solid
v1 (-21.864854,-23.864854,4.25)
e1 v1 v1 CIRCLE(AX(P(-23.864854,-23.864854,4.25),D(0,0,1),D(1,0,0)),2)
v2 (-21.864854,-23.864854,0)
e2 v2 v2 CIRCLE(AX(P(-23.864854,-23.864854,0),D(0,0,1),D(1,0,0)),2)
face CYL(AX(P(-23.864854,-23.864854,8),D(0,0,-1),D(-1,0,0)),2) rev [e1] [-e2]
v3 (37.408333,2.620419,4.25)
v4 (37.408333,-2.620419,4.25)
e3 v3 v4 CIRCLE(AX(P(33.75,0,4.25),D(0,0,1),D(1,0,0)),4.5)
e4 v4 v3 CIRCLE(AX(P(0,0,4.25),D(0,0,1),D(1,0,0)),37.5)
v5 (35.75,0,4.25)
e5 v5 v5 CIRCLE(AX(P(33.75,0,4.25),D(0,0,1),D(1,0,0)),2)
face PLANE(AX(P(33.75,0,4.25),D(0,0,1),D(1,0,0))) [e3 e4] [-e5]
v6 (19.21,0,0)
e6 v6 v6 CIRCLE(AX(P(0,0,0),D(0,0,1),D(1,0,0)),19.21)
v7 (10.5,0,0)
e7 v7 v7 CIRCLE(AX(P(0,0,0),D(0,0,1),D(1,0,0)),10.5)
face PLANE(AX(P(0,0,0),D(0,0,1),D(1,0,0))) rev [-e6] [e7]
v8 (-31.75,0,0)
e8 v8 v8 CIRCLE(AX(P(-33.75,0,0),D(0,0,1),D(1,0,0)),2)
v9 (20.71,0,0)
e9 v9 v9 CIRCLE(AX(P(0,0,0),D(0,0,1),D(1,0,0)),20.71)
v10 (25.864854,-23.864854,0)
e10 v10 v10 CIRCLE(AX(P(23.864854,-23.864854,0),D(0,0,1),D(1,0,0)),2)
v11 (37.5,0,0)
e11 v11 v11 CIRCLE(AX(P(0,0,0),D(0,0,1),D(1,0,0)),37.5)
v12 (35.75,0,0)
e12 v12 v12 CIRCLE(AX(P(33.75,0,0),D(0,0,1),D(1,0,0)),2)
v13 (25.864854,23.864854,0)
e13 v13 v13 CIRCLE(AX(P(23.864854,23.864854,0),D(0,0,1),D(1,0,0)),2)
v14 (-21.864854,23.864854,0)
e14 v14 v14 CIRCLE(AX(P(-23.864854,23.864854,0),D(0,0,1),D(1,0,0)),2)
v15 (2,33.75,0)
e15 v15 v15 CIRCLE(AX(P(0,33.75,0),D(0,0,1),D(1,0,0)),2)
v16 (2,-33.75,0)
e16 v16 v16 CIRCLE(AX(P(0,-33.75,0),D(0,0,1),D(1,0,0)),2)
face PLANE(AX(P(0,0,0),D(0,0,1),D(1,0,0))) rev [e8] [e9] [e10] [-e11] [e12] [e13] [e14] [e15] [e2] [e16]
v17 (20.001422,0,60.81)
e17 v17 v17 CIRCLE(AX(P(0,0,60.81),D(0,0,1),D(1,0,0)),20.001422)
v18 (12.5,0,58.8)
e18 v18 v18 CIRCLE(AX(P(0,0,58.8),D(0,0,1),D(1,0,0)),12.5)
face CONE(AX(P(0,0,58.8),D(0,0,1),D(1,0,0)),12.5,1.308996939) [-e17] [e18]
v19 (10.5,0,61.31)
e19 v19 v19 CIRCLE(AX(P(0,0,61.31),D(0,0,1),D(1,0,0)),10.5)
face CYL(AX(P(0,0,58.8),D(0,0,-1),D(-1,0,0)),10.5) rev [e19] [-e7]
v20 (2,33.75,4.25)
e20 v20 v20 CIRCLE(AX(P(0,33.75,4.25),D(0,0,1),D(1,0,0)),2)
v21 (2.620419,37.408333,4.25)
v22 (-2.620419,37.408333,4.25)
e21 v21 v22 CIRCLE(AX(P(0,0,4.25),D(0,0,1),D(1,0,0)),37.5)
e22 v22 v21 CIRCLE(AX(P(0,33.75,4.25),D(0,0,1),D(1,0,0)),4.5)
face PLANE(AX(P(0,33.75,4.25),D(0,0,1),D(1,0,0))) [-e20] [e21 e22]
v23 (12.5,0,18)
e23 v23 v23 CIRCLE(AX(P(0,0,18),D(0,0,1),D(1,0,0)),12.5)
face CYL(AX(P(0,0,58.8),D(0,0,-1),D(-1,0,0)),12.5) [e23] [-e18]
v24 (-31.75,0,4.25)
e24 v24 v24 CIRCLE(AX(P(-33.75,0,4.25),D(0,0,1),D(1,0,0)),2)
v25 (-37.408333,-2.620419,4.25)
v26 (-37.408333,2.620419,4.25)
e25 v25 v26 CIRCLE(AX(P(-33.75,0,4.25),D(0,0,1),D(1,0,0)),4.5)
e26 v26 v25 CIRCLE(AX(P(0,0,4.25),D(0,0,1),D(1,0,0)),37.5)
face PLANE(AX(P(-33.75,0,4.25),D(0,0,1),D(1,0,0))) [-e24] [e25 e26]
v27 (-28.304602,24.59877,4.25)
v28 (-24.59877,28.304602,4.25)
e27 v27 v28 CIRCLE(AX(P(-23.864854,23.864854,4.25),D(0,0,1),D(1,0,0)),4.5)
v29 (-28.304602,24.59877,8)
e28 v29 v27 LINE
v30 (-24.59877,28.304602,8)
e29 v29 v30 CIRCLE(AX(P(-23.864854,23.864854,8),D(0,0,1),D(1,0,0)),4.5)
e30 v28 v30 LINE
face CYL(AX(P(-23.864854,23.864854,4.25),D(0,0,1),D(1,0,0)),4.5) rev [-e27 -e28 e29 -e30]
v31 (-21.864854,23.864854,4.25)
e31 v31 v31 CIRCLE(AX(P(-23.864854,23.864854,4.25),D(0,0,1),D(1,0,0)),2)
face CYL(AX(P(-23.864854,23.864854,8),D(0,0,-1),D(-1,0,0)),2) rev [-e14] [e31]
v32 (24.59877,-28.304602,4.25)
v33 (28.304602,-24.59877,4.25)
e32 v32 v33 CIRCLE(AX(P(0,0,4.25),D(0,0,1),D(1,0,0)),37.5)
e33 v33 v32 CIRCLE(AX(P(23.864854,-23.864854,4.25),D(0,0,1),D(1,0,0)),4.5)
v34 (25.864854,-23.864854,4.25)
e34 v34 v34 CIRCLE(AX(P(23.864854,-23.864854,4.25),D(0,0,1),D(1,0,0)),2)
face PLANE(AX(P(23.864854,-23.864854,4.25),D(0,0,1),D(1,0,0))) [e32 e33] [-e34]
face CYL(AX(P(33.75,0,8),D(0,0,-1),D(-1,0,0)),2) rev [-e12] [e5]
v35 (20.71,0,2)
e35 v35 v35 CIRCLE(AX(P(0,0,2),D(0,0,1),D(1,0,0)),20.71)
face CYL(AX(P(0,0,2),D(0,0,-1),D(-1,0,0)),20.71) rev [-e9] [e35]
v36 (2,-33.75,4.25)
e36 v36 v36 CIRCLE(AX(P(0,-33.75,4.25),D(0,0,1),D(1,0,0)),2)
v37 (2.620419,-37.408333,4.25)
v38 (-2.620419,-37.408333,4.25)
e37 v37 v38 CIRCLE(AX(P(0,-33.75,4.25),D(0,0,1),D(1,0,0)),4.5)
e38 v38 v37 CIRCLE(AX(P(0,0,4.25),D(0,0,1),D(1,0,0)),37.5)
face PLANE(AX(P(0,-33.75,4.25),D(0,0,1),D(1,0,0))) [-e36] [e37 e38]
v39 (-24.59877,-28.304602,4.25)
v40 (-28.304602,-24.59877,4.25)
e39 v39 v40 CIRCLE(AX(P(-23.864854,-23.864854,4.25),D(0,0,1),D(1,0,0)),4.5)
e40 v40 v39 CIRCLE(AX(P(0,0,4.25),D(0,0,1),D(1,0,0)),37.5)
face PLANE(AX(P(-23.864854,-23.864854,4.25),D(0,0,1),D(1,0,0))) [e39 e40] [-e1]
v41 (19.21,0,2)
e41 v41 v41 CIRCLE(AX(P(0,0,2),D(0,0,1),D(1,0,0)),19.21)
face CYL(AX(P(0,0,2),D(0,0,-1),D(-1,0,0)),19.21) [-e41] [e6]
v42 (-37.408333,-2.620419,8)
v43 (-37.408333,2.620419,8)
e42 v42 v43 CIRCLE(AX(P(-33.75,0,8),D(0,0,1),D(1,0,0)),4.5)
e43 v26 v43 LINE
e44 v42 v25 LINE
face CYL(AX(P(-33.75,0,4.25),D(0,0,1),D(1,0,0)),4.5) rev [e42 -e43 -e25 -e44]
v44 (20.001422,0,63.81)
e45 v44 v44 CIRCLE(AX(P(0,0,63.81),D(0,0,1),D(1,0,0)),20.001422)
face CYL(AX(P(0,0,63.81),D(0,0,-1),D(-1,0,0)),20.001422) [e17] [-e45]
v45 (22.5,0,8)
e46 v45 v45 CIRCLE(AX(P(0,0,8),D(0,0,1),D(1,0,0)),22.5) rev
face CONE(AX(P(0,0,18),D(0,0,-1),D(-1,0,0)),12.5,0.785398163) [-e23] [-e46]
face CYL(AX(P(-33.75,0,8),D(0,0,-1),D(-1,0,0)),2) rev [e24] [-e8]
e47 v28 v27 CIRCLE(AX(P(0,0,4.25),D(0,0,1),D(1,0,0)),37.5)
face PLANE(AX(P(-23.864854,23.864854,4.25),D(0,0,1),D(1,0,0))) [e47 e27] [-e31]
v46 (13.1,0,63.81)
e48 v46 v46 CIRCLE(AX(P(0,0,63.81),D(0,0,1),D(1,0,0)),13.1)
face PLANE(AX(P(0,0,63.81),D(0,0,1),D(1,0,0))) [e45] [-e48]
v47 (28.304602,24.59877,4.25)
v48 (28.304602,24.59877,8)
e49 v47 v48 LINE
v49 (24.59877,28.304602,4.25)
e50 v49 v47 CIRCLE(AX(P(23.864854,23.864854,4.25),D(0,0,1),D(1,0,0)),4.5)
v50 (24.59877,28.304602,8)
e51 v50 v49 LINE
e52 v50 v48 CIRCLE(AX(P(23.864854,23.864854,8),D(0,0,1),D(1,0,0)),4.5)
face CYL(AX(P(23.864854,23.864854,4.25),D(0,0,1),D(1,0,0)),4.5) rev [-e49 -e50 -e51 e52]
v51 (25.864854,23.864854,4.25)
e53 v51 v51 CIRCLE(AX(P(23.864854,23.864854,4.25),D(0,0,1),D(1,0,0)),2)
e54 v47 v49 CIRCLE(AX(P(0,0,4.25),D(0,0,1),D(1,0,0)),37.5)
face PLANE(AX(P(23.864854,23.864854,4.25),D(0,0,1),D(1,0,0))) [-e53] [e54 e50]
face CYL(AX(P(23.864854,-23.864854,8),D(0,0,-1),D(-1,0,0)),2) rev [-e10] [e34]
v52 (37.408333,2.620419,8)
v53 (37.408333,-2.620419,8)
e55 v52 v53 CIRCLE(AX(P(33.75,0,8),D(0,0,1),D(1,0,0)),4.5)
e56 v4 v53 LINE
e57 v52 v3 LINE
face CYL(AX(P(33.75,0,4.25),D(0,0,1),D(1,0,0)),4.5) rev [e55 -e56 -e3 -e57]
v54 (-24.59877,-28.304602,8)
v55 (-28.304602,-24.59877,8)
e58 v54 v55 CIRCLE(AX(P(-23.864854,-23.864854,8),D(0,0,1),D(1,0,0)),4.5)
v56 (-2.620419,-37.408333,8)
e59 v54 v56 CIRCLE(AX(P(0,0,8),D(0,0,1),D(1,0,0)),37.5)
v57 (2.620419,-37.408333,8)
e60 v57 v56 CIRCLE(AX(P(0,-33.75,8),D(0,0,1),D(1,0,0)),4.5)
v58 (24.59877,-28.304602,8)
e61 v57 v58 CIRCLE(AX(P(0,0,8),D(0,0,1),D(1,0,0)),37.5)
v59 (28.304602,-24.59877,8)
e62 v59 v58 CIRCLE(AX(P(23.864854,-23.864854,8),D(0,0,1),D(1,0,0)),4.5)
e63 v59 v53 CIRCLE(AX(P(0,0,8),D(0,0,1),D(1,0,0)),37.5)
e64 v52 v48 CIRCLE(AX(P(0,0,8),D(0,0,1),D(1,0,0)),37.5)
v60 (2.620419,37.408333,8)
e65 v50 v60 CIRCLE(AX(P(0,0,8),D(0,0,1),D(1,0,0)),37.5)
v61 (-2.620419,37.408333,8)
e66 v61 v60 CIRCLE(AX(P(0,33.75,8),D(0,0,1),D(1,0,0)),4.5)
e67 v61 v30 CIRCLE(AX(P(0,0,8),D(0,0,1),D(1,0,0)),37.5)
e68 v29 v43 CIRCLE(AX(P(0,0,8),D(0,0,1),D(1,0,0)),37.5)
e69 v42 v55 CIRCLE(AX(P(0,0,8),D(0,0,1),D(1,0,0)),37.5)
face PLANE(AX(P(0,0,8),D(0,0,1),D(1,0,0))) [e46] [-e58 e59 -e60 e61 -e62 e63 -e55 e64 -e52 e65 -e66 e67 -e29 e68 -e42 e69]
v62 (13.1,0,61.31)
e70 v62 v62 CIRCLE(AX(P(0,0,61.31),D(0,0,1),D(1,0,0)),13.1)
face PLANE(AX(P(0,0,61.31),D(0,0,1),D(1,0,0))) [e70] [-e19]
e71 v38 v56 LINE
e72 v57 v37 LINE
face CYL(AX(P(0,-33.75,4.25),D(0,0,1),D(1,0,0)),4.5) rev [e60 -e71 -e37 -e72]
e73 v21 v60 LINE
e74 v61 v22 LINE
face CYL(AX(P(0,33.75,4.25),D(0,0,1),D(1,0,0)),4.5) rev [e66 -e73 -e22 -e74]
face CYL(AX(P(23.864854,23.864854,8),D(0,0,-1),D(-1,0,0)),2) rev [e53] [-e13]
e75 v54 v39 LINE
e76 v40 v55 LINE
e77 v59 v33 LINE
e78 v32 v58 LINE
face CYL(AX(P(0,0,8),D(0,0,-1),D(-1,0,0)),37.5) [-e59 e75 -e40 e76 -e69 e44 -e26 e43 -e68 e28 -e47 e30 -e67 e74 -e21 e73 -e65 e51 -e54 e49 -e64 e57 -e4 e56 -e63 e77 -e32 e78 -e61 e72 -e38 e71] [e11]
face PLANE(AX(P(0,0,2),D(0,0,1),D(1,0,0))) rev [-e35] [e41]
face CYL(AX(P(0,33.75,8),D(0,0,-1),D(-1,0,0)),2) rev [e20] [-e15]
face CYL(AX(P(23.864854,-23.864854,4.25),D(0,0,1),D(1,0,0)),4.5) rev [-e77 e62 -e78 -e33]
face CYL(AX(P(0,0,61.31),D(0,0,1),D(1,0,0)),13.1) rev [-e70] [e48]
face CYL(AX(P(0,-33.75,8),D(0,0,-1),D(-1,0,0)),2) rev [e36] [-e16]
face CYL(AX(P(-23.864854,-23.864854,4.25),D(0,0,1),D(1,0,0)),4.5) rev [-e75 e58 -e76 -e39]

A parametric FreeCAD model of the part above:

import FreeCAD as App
import Part
import Sketcher


def edges_at(feature, points):
    """Names of the edges that pass closest to the given points."""
    edges = feature.Shape.Edges
    near = lambda p: min(range(len(edges)), key=lambda i: edges[i].distToShape(Part.Vertex(*p))[0])
    return sorted({f"Edge{near(p) + 1}" for p in points})


def faces_at(feature, points):
    """Names of the faces that lie closest to the given points."""
    faces = feature.Shape.Faces
    near = lambda p: min(range(len(faces)), key=lambda i: faces[i].distToShape(Part.Vertex(*p))[0])
    return sorted({f"Face{near(p) + 1}" for p in points})

doc = App.newDocument("Part")
body = doc.addObject("PartDesign::Body", "Body")

# Sketch on XY plane
sketch1 = body.newObject("Sketcher::SketchObject", "Sketch")
sketch1.AttachmentSupport = (doc.getObject("XY_Plane"), [""])
sketch1.MapMode = "FlatFace"
sketch1.addGeometry(Part.Circle(App.Vector(0, 0, 0), App.Vector(0, 0, 1), 38), False)
sketch1.addGeometry(Part.Circle(App.Vector(0, 0, 0), App.Vector(0, 0, 1), 5), False)
sketch1.addConstraint(Sketcher.Constraint("Coincident", 0, 3, -1, 1))
sketch1.addConstraint(Sketcher.Constraint("Coincident", 1, 3, -1, 1))
sketch1.addConstraint(Sketcher.Constraint("Diameter", 0, 75.0))
sketch1.addConstraint(Sketcher.Constraint("Diameter", 1, 10.7))
pad1 = body.newObject("PartDesign::Pad", "Pad")
pad1.Profile = sketch1
pad1.Length = 8

# Sketch on XY plane
sketch2 = body.newObject("Sketcher::SketchObject", "Sketch001")
sketch2.AttachmentSupport = (doc.getObject("XY_Plane"), [""])
sketch2.MapMode = "FlatFace"
sketch2.addGeometry(Part.Circle(App.Vector(0, 33.8, 0), App.Vector(0, 0, 1), 2), False)
sketch2.addGeometry(Part.Circle(App.Vector(-23.9, 23.9, 0), App.Vector(0, 0, 1), 2), False)
sketch2.addGeometry(Part.Circle(App.Vector(-33.8, 0, 0), App.Vector(0, 0, 1), 2), False)
sketch2.addGeometry(Part.Circle(App.Vector(-23.9, -23.9, 0), App.Vector(0, 0, 1), 2), False)
sketch2.addGeometry(Part.Circle(App.Vector(0, -33.8, 0), App.Vector(0, 0, 1), 2), False)
sketch2.addGeometry(Part.Circle(App.Vector(23.9, -23.9, 0), App.Vector(0, 0, 1), 2), False)
sketch2.addGeometry(Part.Circle(App.Vector(33.8, 0, 0), App.Vector(0, 0, 1), 2), False)
sketch2.addGeometry(Part.Circle(App.Vector(23.9, 23.9, 0), App.Vector(0, 0, 1), 2), False)
sketch2.addConstraint(Sketcher.Constraint("Equal", 0, 1))
sketch2.addConstraint(Sketcher.Constraint("Equal", 1, 2))
sketch2.addConstraint(Sketcher.Constraint("Equal", 2, 3))
sketch2.addConstraint(Sketcher.Constraint("Equal", 3, 4))
sketch2.addConstraint(Sketcher.Constraint("Equal", 4, 5))
sketch2.addConstraint(Sketcher.Constraint("Equal", 5, 6))
sketch2.addConstraint(Sketcher.Constraint("Equal", 6, 7))
sketch2.addConstraint(Sketcher.Constraint("Symmetric", 0, 3, 4, 3, -1, 1))
sketch2.addConstraint(Sketcher.Constraint("Symmetric", 1, 3, 5, 3, -1, 1))
sketch2.addConstraint(Sketcher.Constraint("Symmetric", 2, 3, 6, 3, -1, 1))
sketch2.addConstraint(Sketcher.Constraint("Symmetric", 3, 3, 7, 3, -1, 1))
sketch2.addConstraint(Sketcher.Constraint("Symmetric", 3, 3, 5, 3, -2))
sketch2.addConstraint(Sketcher.Constraint("PointOnObject", 0, 3, -2))
sketch2.addConstraint(Sketcher.Constraint("PointOnObject", 2, 3, -1))
sketch2.addConstraint(Sketcher.Constraint("Diameter", 0, 4.0))
sketch2.addConstraint(Sketcher.Constraint("DistanceY", 4, 3, 0, 3, 67.5))
sketch2.addConstraint(Sketcher.Constraint("DistanceX", 2, 3, -1, 1, 33.75))
sketch2.addConstraint(Sketcher.Constraint("DistanceX", 1, 3, -1, 1, 23.864854))
sketch2.addConstraint(Sketcher.Constraint("DistanceY", -1, 1, 1, 3, 23.864854))
pocket1 = body.newObject("PartDesign::Pocket", "Pocket")
pocket1.Profile = sketch2
pocket1.Type = "ThroughAll"
pocket1.Reversed = True

# Sketch on XY plane
sketch3 = body.newObject("Sketcher::SketchObject", "Sketch002")
sketch3.AttachmentSupport = (doc.getObject("XY_Plane"), [""])
sketch3.MapMode = "FlatFace"
sketch3.addGeometry(Part.Circle(App.Vector(0, 0, 0), App.Vector(0, 0, 1), 21), False)
sketch3.addGeometry(Part.Circle(App.Vector(0, 0, 0), App.Vector(0, 0, 1), 19), False)
sketch3.addConstraint(Sketcher.Constraint("Coincident", 0, 3, -1, 1))
sketch3.addConstraint(Sketcher.Constraint("Coincident", 1, 3, -1, 1))
sketch3.addConstraint(Sketcher.Constraint("Diameter", 0, 41.42))
sketch3.addConstraint(Sketcher.Constraint("Diameter", 1, 38.42))
pocket2 = body.newObject("PartDesign::Pocket", "Pocket001")
pocket2.Profile = sketch3
pocket2.Length = 2
pocket2.Reversed = True

# Sketch on XY plane
sketch4 = body.newObject("Sketcher::SketchObject", "Sketch003")
sketch4.AttachmentSupport = (doc.getObject("XY_Plane"), [""])
sketch4.MapMode = "FlatFace"
sketch4.AttachmentOffset = App.Placement(App.Vector(0, 0, 8), App.Rotation())
sketch4.addGeometry(Part.Circle(App.Vector(0, 0, 0), App.Vector(0, 0, 1), 12), False)
sketch4.addGeometry(Part.Circle(App.Vector(0, 0, 0), App.Vector(0, 0, 1), 10), False)
sketch4.addConstraint(Sketcher.Constraint("Coincident", 0, 3, -1, 1))
sketch4.addConstraint(Sketcher.Constraint("Coincident", 1, 3, -1, 1))
sketch4.addConstraint(Sketcher.Constraint("Diameter", 0, 25.0))
sketch4.addConstraint(Sketcher.Constraint("Diameter", 1, 21.0))
pad2 = body.newObject("PartDesign::Pad", "Pad001")
pad2.Profile = sketch4
pad2.Length = 50.8
body2 = doc.addObject("PartDesign::Body", "Body001")

# Sketch on XY plane
sketch5 = body2.newObject("Sketcher::SketchObject", "Sketch004")
sketch5.AttachmentSupport = (doc.getObject("XY_Plane001"), [""])
sketch5.MapMode = "FlatFace"
sketch5.AttachmentOffset = App.Placement(App.Vector(0, 0, 58.8), App.Rotation())
sketch5.addGeometry(Part.Circle(App.Vector(0, 0, 0), App.Vector(0, 0, 1), 12), False)
sketch5.addConstraint(Sketcher.Constraint("Coincident", 0, 3, -1, 1))
sketch5.addConstraint(Sketcher.Constraint("Diameter", 0, 25.0))
pad3 = body2.newObject("PartDesign::Pad", "Pad002")
pad3.Profile = sketch5
pad3.Length = 2.01
doc.recompute()

datumplane = body2.newObject("PartDesign::Plane", "DatumPlane")
datumplane.AttachmentSupport = (doc.getObject("XY_Plane001"), [""])
datumplane.MapMode = "FlatFace"
datumplane.AttachmentOffset = App.Placement(App.Vector(0, 0, 58.8), App.Rotation())
draft = body2.newObject("PartDesign::Draft", "Draft")
draft.Base = (pad3, faces_at(pad3, [(-12.5, 0, 59.805)]))
draft.NeutralPlane = (datumplane, [""])
draft.Angle = 75
draft.Reversed = True
doc.recompute()

boolean = body.newObject("PartDesign::Boolean", "Boolean")
boolean.Type = "Fuse"
boolean.addObjects([body2])

# Sketch on XY plane
sketch6 = body.newObject("Sketcher::SketchObject", "Sketch005")
sketch6.AttachmentSupport = (doc.getObject("XY_Plane"), [""])
sketch6.MapMode = "FlatFace"
sketch6.AttachmentOffset = App.Placement(App.Vector(0, 0, 60.81), App.Rotation())
sketch6.addGeometry(Part.Circle(App.Vector(0, 0, 0), App.Vector(0, 0, 1), 10), False)
sketch6.addConstraint(Sketcher.Constraint("Coincident", 0, 3, -1, 1))
sketch6.addConstraint(Sketcher.Constraint("Diameter", 0, 21.0))
pocket3 = body.newObject("PartDesign::Pocket", "Pocket002")
pocket3.Profile = sketch6
pocket3.Type = "ThroughAll"

# Sketch on XY plane
sketch7 = body.newObject("Sketcher::SketchObject", "Sketch006")
sketch7.AttachmentSupport = (doc.getObject("XY_Plane"), [""])
sketch7.MapMode = "FlatFace"
sketch7.AttachmentOffset = App.Placement(App.Vector(0, 0, 63.81), App.Rotation())
sketch7.addGeometry(Part.Circle(App.Vector(0, 0, 0), App.Vector(0, 0, 1), 20), False)
sketch7.addGeometry(Part.Circle(App.Vector(0, 0, 0), App.Vector(0, 0, 1), 10), False)
sketch7.addConstraint(Sketcher.Constraint("Coincident", 0, 3, -1, 1))
sketch7.addConstraint(Sketcher.Constraint("Coincident", 1, 3, -1, 1))
sketch7.addConstraint(Sketcher.Constraint("Diameter", 1, 21.0))
sketch7.addConstraint(Sketcher.Constraint("Diameter", 0, 40.002844))
pad4 = body.newObject("PartDesign::Pad", "Pad003")
pad4.Profile = sketch7
pad4.Length = 3
pad4.Reversed = True

# Sketch on XY plane
sketch8 = body.newObject("Sketcher::SketchObject", "Sketch007")
sketch8.AttachmentSupport = (doc.getObject("XY_Plane"), [""])
sketch8.MapMode = "FlatFace"
sketch8.AttachmentOffset = App.Placement(App.Vector(0, 0, 63.81), App.Rotation())
sketch8.addGeometry(Part.Circle(App.Vector(0, 0, 0), App.Vector(0, 0, 1), 13), False)
sketch8.addConstraint(Sketcher.Constraint("Coincident", 0, 3, -1, 1))
sketch8.addConstraint(Sketcher.Constraint("Diameter", 0, 26.2))
pocket4 = body.newObject("PartDesign::Pocket", "Pocket003")
pocket4.Profile = sketch8
pocket4.Length = 2.5
doc.recompute()

chamfer = body.newObject("PartDesign::Chamfer", "Chamfer")
chamfer.Base = (pocket4, edges_at(pocket4, [(-12.5, 0, 8)]))
chamfer.Size = 10

# Sketch on XY plane
sketch9 = body.newObject("Sketcher::SketchObject", "Sketch008")
sketch9.AttachmentSupport = (doc.getObject("XY_Plane"), [""])
sketch9.MapMode = "FlatFace"
sketch9.AttachmentOffset = App.Placement(App.Vector(0, 0, 8), App.Rotation())
sketch9.addGeometry(Part.Circle(App.Vector(-23.9, 23.9, 0), App.Vector(0, 0, 1), 4.5), False)
sketch9.addGeometry(Part.Circle(App.Vector(-33.8, 0, 0), App.Vector(0, 0, 1), 4.5), False)
sketch9.addGeometry(Part.Circle(App.Vector(0, 33.8, 0), App.Vector(0, 0, 1), 4.5), False)
sketch9.addGeometry(Part.Circle(App.Vector(23.9, 23.9, 0), App.Vector(0, 0, 1), 4.5), False)
sketch9.addGeometry(Part.Circle(App.Vector(33.8, 0, 0), App.Vector(0, 0, 1), 4.5), False)
sketch9.addGeometry(Part.Circle(App.Vector(23.9, -23.9, 0), App.Vector(0, 0, 1), 4.5), False)
sketch9.addGeometry(Part.Circle(App.Vector(0, -33.8, 0), App.Vector(0, 0, 1), 4.5), False)
sketch9.addGeometry(Part.Circle(App.Vector(-23.9, -23.9, 0), App.Vector(0, 0, 1), 4.5), False)
sketch9.addConstraint(Sketcher.Constraint("Equal", 0, 1))
sketch9.addConstraint(Sketcher.Constraint("Equal", 1, 2))
sketch9.addConstraint(Sketcher.Constraint("Equal", 2, 3))
sketch9.addConstraint(Sketcher.Constraint("Equal", 3, 4))
sketch9.addConstraint(Sketcher.Constraint("Equal", 4, 5))
sketch9.addConstraint(Sketcher.Constraint("Equal", 5, 6))
sketch9.addConstraint(Sketcher.Constraint("Equal", 6, 7))
sketch9.addConstraint(Sketcher.Constraint("Symmetric", 1, 3, 4, 3, -1, 1))
sketch9.addConstraint(Sketcher.Constraint("Symmetric", 0, 3, 5, 3, -1, 1))
sketch9.addConstraint(Sketcher.Constraint("Symmetric", 2, 3, 6, 3, -1, 1))
sketch9.addConstraint(Sketcher.Constraint("Symmetric", 3, 3, 7, 3, -1, 1))
sketch9.addConstraint(Sketcher.Constraint("Symmetric", 0, 3, 3, 3, -2))
sketch9.addConstraint(Sketcher.Constraint("PointOnObject", 1, 3, -1))
sketch9.addConstraint(Sketcher.Constraint("PointOnObject", 2, 3, -2))
sketch9.addConstraint(Sketcher.Constraint("Diameter", 0, 9.0))
sketch9.addConstraint(Sketcher.Constraint("DistanceX", 1, 3, 4, 3, 67.5))
sketch9.addConstraint(Sketcher.Constraint("DistanceY", -1, 1, 2, 3, 33.75))
sketch9.addConstraint(Sketcher.Constraint("DistanceX", 0, 3, -1, 1, 23.864854))
sketch9.addConstraint(Sketcher.Constraint("DistanceY", -1, 1, 0, 3, 23.864854))
pocket5 = body.newObject("PartDesign::Pocket", "Pocket004")
pocket5.Profile = sketch9
pocket5.Length = 3.75

doc.recompute()
